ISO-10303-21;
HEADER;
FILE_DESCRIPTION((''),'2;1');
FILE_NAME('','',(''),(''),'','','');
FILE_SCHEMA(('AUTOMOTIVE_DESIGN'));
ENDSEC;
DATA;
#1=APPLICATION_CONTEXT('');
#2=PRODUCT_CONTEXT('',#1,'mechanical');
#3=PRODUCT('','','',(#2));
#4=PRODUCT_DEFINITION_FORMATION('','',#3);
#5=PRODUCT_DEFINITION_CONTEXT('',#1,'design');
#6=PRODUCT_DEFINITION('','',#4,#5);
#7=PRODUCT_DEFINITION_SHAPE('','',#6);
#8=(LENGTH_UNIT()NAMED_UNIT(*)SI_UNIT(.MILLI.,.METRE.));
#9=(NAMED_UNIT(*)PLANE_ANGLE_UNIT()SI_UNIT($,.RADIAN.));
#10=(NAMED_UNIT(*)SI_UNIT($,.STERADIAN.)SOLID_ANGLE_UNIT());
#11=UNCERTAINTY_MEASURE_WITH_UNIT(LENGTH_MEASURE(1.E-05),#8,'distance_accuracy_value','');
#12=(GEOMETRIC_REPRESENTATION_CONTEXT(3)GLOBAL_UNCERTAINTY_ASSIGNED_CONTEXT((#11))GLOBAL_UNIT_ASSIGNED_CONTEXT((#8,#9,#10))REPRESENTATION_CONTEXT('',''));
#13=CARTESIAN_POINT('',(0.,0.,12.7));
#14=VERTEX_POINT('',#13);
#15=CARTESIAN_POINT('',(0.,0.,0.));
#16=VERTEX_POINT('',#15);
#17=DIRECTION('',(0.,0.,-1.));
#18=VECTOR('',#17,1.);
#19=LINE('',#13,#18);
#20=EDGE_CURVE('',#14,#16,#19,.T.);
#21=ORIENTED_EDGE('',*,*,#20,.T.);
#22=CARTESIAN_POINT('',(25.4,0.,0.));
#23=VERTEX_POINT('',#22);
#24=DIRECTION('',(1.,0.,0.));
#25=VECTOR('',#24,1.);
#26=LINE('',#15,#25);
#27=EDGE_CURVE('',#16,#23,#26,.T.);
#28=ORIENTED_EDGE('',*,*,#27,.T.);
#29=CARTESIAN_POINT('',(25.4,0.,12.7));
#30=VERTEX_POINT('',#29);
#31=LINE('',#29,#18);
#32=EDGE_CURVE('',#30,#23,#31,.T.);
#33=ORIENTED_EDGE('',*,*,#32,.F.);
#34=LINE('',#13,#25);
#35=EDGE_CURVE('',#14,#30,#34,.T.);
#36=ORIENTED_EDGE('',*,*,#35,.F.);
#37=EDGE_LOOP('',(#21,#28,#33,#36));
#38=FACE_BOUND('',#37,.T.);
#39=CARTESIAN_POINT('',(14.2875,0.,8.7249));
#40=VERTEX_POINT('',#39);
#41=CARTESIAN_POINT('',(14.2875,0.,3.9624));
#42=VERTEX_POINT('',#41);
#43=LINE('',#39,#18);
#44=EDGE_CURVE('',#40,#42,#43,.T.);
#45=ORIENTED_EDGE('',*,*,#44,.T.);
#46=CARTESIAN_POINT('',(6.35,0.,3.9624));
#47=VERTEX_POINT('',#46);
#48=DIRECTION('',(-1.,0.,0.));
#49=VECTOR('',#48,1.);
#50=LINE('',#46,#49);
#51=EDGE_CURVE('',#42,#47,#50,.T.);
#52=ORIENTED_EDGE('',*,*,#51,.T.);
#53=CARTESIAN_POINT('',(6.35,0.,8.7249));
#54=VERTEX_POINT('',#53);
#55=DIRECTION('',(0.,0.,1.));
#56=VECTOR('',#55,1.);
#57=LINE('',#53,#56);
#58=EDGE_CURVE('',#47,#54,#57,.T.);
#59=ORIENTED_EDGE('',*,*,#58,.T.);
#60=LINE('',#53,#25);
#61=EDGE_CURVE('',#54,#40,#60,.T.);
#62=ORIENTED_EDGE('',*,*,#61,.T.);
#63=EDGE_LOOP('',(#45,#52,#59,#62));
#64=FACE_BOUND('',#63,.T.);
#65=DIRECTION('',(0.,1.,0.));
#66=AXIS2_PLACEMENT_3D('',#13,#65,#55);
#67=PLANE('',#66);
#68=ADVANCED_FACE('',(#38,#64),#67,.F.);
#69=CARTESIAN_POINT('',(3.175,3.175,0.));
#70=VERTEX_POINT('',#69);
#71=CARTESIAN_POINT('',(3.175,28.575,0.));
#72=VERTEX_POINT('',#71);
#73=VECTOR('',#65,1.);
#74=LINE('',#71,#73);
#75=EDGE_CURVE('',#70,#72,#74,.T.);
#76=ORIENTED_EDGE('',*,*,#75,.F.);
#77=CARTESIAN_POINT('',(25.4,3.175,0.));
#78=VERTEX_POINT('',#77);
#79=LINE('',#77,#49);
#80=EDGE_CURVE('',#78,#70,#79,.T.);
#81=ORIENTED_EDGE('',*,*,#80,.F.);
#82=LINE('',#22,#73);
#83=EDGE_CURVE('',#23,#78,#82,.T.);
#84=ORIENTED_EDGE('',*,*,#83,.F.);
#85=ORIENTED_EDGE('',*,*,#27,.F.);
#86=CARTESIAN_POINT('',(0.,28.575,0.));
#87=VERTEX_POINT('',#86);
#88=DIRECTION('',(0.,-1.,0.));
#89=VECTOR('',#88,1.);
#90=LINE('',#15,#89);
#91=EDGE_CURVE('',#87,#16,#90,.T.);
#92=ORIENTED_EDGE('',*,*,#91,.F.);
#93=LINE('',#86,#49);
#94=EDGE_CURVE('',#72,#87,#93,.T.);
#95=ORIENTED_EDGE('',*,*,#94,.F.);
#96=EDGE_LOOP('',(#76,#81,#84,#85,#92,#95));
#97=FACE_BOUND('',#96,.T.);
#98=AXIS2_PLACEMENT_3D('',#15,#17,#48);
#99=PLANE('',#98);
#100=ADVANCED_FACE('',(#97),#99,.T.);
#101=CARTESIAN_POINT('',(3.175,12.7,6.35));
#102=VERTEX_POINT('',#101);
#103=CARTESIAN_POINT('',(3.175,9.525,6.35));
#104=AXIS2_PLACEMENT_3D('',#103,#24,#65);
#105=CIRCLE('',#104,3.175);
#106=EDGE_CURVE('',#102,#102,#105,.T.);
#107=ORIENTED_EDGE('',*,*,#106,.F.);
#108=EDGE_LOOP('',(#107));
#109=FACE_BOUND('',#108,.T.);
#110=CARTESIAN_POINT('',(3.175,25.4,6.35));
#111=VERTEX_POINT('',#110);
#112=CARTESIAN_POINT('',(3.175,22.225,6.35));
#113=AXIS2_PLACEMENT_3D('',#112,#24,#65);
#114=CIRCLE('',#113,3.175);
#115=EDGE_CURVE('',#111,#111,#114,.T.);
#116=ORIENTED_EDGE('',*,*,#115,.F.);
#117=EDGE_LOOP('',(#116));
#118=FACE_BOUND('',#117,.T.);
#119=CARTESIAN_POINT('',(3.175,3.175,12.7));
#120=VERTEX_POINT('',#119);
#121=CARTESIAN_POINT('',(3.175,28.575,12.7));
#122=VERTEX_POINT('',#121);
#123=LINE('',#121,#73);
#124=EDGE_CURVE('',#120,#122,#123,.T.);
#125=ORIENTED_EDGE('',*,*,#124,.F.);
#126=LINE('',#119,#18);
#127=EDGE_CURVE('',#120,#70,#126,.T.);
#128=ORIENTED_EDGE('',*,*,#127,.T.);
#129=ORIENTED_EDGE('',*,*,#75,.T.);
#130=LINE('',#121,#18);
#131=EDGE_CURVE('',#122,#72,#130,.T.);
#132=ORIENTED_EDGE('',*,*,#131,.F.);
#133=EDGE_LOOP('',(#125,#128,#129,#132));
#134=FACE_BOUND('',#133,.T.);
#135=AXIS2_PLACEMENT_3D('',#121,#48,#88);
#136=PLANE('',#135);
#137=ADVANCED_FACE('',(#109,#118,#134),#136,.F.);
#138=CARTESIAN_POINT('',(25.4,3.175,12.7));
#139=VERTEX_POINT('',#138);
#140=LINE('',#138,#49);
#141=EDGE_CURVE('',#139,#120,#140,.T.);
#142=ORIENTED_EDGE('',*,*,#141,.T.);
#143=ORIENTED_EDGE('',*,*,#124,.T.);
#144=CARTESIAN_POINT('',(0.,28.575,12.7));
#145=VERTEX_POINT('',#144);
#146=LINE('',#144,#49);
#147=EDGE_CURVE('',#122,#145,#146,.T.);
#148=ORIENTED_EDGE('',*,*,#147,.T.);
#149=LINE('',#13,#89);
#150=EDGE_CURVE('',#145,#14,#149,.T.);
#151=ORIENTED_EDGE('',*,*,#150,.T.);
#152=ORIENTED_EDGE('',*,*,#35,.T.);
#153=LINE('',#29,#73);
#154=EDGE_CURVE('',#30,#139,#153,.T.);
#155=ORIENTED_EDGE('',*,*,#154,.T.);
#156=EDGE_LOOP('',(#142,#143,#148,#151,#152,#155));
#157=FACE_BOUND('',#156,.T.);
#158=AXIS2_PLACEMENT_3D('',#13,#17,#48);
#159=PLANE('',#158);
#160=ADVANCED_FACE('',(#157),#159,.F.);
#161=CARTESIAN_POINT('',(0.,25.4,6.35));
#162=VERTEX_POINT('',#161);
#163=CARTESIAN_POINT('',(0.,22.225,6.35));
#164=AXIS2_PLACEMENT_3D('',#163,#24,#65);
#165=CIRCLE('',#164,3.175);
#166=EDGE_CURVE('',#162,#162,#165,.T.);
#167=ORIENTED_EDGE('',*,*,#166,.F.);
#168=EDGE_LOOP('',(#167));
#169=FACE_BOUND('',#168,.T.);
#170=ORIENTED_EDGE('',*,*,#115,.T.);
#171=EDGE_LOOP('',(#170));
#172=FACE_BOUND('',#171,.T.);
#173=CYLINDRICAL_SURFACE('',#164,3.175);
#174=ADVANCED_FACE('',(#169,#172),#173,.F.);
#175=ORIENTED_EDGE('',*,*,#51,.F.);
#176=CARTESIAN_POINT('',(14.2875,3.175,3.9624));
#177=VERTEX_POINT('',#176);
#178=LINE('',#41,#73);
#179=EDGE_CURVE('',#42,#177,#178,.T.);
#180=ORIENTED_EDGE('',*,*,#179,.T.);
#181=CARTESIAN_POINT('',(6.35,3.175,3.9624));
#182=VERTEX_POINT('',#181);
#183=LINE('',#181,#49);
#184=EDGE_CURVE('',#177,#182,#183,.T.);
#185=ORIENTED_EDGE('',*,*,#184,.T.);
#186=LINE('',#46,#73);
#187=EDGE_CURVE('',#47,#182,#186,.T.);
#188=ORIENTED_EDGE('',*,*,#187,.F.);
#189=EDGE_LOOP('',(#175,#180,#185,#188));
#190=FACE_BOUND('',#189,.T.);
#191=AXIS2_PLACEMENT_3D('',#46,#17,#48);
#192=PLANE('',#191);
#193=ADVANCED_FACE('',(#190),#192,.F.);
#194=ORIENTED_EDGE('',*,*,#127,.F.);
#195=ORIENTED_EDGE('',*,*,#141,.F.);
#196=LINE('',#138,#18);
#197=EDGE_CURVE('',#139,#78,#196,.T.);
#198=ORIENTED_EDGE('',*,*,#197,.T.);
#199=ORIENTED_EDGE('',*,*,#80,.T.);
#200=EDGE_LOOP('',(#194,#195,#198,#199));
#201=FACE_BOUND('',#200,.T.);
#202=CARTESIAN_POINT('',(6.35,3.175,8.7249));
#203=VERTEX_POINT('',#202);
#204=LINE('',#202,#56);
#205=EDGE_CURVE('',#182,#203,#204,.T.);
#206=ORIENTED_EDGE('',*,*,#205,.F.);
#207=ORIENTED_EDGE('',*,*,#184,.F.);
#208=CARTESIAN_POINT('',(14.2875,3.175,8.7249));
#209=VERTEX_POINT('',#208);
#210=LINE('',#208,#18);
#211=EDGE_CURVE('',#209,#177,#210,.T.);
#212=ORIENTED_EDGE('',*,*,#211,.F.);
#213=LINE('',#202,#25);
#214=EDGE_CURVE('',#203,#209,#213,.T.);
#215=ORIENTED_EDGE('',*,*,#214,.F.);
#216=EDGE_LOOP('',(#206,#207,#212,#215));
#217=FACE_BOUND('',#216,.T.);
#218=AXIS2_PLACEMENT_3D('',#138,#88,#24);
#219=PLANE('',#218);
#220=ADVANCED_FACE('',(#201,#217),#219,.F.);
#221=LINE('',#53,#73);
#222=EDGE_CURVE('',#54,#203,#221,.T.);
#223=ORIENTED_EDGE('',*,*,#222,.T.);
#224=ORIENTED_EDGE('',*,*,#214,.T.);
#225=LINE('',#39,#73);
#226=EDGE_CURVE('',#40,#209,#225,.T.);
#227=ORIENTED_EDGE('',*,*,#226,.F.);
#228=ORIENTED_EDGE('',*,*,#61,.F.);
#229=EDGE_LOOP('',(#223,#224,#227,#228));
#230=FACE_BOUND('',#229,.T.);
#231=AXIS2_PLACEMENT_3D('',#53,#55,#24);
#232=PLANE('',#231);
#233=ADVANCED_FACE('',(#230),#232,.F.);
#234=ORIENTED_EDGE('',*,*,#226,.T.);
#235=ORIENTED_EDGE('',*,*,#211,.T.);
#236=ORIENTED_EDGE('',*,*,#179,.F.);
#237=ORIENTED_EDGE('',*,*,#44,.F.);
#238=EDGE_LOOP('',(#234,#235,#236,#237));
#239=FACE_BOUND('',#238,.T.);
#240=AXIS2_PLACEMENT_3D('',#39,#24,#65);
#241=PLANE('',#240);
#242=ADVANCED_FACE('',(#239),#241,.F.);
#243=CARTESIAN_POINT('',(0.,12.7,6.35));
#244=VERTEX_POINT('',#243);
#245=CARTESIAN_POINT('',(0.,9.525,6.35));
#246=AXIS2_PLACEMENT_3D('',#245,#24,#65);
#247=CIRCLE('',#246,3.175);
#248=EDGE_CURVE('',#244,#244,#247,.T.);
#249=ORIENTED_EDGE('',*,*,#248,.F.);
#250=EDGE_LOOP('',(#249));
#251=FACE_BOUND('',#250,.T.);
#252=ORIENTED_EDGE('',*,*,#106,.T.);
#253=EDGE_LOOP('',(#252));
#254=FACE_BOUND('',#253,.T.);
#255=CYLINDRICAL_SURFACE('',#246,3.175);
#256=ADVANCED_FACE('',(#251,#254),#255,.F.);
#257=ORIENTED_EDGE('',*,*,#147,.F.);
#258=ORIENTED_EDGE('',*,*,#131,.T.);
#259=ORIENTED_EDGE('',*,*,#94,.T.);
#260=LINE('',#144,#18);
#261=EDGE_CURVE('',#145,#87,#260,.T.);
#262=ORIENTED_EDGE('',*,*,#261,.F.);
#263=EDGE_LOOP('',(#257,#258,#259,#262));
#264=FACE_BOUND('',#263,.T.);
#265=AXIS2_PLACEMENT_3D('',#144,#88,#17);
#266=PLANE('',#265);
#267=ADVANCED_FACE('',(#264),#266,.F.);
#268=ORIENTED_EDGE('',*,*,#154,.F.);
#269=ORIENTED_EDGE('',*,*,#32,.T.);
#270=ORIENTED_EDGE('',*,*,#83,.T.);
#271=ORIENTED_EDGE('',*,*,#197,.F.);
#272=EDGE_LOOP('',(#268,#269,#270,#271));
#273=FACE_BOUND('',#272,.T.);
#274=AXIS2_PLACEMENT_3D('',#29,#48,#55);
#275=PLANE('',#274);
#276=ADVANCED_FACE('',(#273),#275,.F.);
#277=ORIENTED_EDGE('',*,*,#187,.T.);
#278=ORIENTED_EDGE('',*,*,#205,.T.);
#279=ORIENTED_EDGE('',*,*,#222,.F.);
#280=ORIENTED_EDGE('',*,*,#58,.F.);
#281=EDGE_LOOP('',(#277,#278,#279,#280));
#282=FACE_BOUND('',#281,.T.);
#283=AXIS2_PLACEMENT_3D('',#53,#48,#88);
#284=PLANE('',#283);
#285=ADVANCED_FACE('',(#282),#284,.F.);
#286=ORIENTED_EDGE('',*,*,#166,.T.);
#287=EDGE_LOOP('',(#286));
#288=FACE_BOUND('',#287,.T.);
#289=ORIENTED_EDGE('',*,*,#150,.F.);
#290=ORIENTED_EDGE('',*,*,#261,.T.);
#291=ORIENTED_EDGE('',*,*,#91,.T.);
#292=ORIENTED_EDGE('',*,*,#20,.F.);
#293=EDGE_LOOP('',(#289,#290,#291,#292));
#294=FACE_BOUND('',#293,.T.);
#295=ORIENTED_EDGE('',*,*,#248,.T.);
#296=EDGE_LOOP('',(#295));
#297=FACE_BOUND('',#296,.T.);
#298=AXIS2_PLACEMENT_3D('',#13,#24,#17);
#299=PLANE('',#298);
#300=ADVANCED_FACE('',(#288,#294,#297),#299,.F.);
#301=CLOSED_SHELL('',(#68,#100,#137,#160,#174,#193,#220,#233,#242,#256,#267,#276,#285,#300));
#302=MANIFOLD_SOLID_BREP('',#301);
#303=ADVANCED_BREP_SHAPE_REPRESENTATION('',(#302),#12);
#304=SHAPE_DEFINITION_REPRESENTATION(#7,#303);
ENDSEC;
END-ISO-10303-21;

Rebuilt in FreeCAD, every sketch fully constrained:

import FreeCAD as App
import Part
import Sketcher
Q = App.Units.Quantity

doc = App.newDocument("Part")
body = doc.addObject("PartDesign::Body", "Body")

sketch1 = doc.addObject("Sketcher::SketchObject", "Sketch")
body.addObject(sketch1)
sketch1.AttachmentSupport = (doc.XY_Plane, [""])
sketch1.MapMode = "FlatFace"
sketch1.addGeometry([
    Part.LineSegment(App.Vector(0, 0, 0), App.Vector(25.4, 0, 0)),
    Part.LineSegment(App.Vector(25.4, 0, 0), App.Vector(25.4, 3.2, 0)),
    Part.LineSegment(App.Vector(25.4, 3.2, 0), App.Vector(3.2, 3.2, 0)),
    Part.LineSegment(App.Vector(3.2, 3.2, 0), App.Vector(3.2, 28.6, 0)),
    Part.LineSegment(App.Vector(3.2, 28.6, 0), App.Vector(0, 28.6, 0)),
    Part.LineSegment(App.Vector(0, 28.6, 0), App.Vector(0, 0, 0)),
], False)
sketch1.addConstraint([
    Sketcher.Constraint("Coincident", 0, 2, 1, 1),
    Sketcher.Constraint("Coincident", 1, 2, 2, 1),
    Sketcher.Constraint("Coincident", 2, 2, 3, 1),
    Sketcher.Constraint("Coincident", 3, 2, 4, 1),
    Sketcher.Constraint("Coincident", 4, 2, 5, 1),
    Sketcher.Constraint("Coincident", 5, 2, 0, 1),
    Sketcher.Constraint("Horizontal", 0),
    Sketcher.Constraint("Vertical", 1),
    Sketcher.Constraint("Horizontal", 2),
    Sketcher.Constraint("Vertical", 3),
    Sketcher.Constraint("Horizontal", 4),
    Sketcher.Constraint("Vertical", 5),
    Sketcher.Constraint("Coincident", 5, 2, -1, 1),
    Sketcher.Constraint("Equal", 4, 1),
    Sketcher.Constraint("Equal", 0, 3),
    Sketcher.Constraint("DistanceX", 0, 1, 0, 2, Q("1 in")),
    Sketcher.Constraint("DistanceX", 2, 2, 2, 1, Q("0.875 in")),
])
pad1 = doc.addObject("PartDesign::Pad", "Pad")
body.addObject(pad1)
pad1.Profile = sketch1
pad1.Length = Q("0.5 in")

sketch2 = doc.addObject("Sketcher::SketchObject", "Sketch001")
body.addObject(sketch2)
sketch2.AttachmentSupport = (doc.YZ_Plane, [""])
sketch2.MapMode = "FlatFace"
sketch2.AttachmentOffset = App.Placement(App.Vector(0, 0, 0.125 * 25.4), App.Rotation())
sketch2.addGeometry([
    Part.Circle(App.Vector(22.2, 6.3, 0), App.Vector(0, 0, 1), 3.2),
    Part.Circle(App.Vector(9.5, 6.3, 0), App.Vector(0, 0, 1), 3.2),
], False)
sketch2.addConstraint([
    Sketcher.Constraint("Equal", 0, 1),
    Sketcher.Constraint("Horizontal", 0, 3, 1, 3),
    Sketcher.Constraint("Diameter", 0, Q("0.25 in")),
    Sketcher.Constraint("DistanceX", 1, 3, 0, 3, Q("0.5 in")),
    Sketcher.Constraint("DistanceY", -1, 1, 0, 3, Q("0.25 in")),
    Sketcher.Constraint("DistanceX", -1, 1, 0, 3, Q("0.875 in")),
])
pocket1 = doc.addObject("PartDesign::Pocket", "Pocket")
body.addObject(pocket1)
pocket1.Profile = sketch2
pocket1.Type = "ThroughAll"

sketch3 = doc.addObject("Sketcher::SketchObject", "Sketch002")
body.addObject(sketch3)
sketch3.AttachmentSupport = (doc.XZ_Plane, [""])
sketch3.MapMode = "FlatFace"
sketch3.AttachmentOffset = App.Placement(App.Vector(0, 0, -0.125 * 25.4), App.Rotation())
sketch3.addGeometry([
    Part.LineSegment(App.Vector(6.3, 4, 0), App.Vector(6.3, 8.7, 0)),
    Part.LineSegment(App.Vector(6.3, 8.7, 0), App.Vector(14.3, 8.7, 0)),
    Part.LineSegment(App.Vector(14.3, 8.7, 0), App.Vector(14.3, 4, 0)),
    Part.LineSegment(App.Vector(14.3, 4, 0), App.Vector(6.3, 4, 0)),
], False)
sketch3.addConstraint([
    Sketcher.Constraint("Coincident", 0, 2, 1, 1),
    Sketcher.Constraint("Coincident", 1, 2, 2, 1),
    Sketcher.Constraint("Coincident", 2, 2, 3, 1),
    Sketcher.Constraint("Coincident", 3, 2, 0, 1),
    Sketcher.Constraint("Vertical", 0),
    Sketcher.Constraint("Horizontal", 1),
    Sketcher.Constraint("Vertical", 2),
    Sketcher.Constraint("Horizontal", 3),
    Sketcher.Constraint("DistanceX", 1, 1, 1, 2, Q("0.3125 in")),
    Sketcher.Constraint("DistanceY", 0, 1, 0, 2, Q("0.1875 in")),
    Sketcher.Constraint("DistanceX", -1, 1, 0, 2, Q("0.25 in")),
    Sketcher.Constraint("DistanceY", -1, 1, 2, 2, Q("0.156 in")),
])
pocket2 = doc.addObject("PartDesign::Pocket", "Pocket001")
body.addObject(pocket2)
pocket2.Profile = sketch3
pocket2.Type = "ThroughAll"
pocket2.Reversed = True

doc.recompute()
